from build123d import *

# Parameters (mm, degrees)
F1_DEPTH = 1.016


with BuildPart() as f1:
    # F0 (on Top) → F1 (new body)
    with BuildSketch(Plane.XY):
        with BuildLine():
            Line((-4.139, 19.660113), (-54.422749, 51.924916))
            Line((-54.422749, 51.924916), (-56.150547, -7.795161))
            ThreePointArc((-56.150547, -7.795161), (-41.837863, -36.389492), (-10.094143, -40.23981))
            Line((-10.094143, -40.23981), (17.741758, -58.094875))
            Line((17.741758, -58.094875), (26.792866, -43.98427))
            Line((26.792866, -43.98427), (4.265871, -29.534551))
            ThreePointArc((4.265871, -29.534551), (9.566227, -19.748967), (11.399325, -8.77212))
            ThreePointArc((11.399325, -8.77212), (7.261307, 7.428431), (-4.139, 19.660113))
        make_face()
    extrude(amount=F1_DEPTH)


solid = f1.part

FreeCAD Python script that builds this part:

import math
import FreeCAD as App
import Part
import Sketcher
from FreeCAD import Vector
Q = App.Units.Quantity

doc = App.newDocument("Part")
params = doc.addObject("Spreadsheet::Sheet", "Params")
for row, (alias, value) in enumerate([
    ("sketch1_radius", "1.33 in"),
    ("sketch1_length", "0.66 in"),
    ("pad1_length", "0.04 in"),
], start=1):
    params.set(f"A{row}", alias)
    params.set(f"B{row}", "=" + value)
    params.setAlias(f"B{row}", alias)

body = doc.addObject("PartDesign::Body", "Body")

sketch1 = doc.addObject("Sketcher::SketchObject", "Sketch")
body.addObject(sketch1)
sketch1.AttachmentSupport = (doc.XY_Plane, [""])
sketch1.MapMode = "FlatFace"
sketch1.addGeometry([
    Part.LineSegment(Vector(-4.139, 19.660113, 0), Vector(-54.422749, 51.924916, 0)),
    Part.LineSegment(Vector(-54.422749, 51.924916, 0), Vector(-56.150547, -7.795161, 0)),
    Part.ArcOfCircle(Part.Circle(Vector(-22.382676, -8.772119, 0), Vector(0, 0, 1), 33.782001), math.radians(178.342804), math.radians(291.331276)),
    Part.LineSegment(Vector(-10.094143, -40.23981, 0), Vector(17.741758, -58.094875, 0)),
    Part.LineSegment(Vector(17.741758, -58.094875, 0), Vector(26.792866, -43.98427, 0)),
    Part.LineSegment(Vector(26.792866, -43.98427, 0), Vector(4.265871, -29.534551, 0)),
    Part.ArcOfCircle(Part.Circle(Vector(-22.382682, -8.772118, 0), Vector(0, 0, 1), 33.782007), math.radians(-37.922886), math.radians(-0.000003)),
    Part.ArcOfCircle(Part.Circle(Vector(-22.382677, -8.772121, 0), Vector(0, 0, 1), 33.782002), math.radians(0.000001), math.radians(57.313548)),
], False)
sketch1.addConstraint([
    Sketcher.Constraint("Coincident", 0, 2, 1, 1),
    Sketcher.Constraint("Tangent", 1, 2, 2, 1),
    Sketcher.Constraint("Coincident", 2, 2, 3, 1),
    Sketcher.Constraint("Coincident", 3, 2, 4, 1),
    Sketcher.Constraint("Coincident", 4, 2, 5, 1),
    Sketcher.Constraint("Coincident", 5, 2, 6, 1),
    Sketcher.Constraint("Tangent", 6, 2, 7, 1),
    Sketcher.Constraint("Tangent", 7, 2, 0, 1),
    Sketcher.Constraint("Coincident", 6, 3, 2, 3),
    Sketcher.Constraint("Equal", 2, 7),
    Sketcher.Constraint("Perpendicular", 3, 4),
    Sketcher.Constraint("Perpendicular", 4, 5),
    Sketcher.Constraint("Horizontal", 7, 3, 6, 2),
    Sketcher.Constraint("Equal", 0, 1),
    Sketcher.Constraint("Radius", 2, Q("1.33 in")),
    Sketcher.Constraint("Distance", 4, Q("0.66 in")),
    Sketcher.Constraint("DistanceY", 3, 2, -1, 1, Q("2.2871998 in")),
    Sketcher.Constraint("DistanceX", 7, 2, -1, 1, 4.139),
    Sketcher.Constraint("DistanceX", 2, 2, 3, 2, 27.835901),
    Sketcher.Constraint("Distance", 3, 33.070239),
    Sketcher.Constraint("DistanceY", 2, 3, -1, 1, 8.772119),
    Sketcher.Constraint("DistanceX", 6, 3, -1, 1, 22.382682),
    Sketcher.Constraint("DistanceX", 0, 2, -1, 1, 54.422749),
])
sketch1.setExpression("Constraints[14]", "Params.sketch1_radius")
sketch1.setExpression("Constraints[15]", "Params.sketch1_length")
pad1 = doc.addObject("PartDesign::Pad", "Pad")
body.addObject(pad1)
pad1.Profile = sketch1
pad1.setExpression("Length", "Params.pad1_length")

doc.recompute()
